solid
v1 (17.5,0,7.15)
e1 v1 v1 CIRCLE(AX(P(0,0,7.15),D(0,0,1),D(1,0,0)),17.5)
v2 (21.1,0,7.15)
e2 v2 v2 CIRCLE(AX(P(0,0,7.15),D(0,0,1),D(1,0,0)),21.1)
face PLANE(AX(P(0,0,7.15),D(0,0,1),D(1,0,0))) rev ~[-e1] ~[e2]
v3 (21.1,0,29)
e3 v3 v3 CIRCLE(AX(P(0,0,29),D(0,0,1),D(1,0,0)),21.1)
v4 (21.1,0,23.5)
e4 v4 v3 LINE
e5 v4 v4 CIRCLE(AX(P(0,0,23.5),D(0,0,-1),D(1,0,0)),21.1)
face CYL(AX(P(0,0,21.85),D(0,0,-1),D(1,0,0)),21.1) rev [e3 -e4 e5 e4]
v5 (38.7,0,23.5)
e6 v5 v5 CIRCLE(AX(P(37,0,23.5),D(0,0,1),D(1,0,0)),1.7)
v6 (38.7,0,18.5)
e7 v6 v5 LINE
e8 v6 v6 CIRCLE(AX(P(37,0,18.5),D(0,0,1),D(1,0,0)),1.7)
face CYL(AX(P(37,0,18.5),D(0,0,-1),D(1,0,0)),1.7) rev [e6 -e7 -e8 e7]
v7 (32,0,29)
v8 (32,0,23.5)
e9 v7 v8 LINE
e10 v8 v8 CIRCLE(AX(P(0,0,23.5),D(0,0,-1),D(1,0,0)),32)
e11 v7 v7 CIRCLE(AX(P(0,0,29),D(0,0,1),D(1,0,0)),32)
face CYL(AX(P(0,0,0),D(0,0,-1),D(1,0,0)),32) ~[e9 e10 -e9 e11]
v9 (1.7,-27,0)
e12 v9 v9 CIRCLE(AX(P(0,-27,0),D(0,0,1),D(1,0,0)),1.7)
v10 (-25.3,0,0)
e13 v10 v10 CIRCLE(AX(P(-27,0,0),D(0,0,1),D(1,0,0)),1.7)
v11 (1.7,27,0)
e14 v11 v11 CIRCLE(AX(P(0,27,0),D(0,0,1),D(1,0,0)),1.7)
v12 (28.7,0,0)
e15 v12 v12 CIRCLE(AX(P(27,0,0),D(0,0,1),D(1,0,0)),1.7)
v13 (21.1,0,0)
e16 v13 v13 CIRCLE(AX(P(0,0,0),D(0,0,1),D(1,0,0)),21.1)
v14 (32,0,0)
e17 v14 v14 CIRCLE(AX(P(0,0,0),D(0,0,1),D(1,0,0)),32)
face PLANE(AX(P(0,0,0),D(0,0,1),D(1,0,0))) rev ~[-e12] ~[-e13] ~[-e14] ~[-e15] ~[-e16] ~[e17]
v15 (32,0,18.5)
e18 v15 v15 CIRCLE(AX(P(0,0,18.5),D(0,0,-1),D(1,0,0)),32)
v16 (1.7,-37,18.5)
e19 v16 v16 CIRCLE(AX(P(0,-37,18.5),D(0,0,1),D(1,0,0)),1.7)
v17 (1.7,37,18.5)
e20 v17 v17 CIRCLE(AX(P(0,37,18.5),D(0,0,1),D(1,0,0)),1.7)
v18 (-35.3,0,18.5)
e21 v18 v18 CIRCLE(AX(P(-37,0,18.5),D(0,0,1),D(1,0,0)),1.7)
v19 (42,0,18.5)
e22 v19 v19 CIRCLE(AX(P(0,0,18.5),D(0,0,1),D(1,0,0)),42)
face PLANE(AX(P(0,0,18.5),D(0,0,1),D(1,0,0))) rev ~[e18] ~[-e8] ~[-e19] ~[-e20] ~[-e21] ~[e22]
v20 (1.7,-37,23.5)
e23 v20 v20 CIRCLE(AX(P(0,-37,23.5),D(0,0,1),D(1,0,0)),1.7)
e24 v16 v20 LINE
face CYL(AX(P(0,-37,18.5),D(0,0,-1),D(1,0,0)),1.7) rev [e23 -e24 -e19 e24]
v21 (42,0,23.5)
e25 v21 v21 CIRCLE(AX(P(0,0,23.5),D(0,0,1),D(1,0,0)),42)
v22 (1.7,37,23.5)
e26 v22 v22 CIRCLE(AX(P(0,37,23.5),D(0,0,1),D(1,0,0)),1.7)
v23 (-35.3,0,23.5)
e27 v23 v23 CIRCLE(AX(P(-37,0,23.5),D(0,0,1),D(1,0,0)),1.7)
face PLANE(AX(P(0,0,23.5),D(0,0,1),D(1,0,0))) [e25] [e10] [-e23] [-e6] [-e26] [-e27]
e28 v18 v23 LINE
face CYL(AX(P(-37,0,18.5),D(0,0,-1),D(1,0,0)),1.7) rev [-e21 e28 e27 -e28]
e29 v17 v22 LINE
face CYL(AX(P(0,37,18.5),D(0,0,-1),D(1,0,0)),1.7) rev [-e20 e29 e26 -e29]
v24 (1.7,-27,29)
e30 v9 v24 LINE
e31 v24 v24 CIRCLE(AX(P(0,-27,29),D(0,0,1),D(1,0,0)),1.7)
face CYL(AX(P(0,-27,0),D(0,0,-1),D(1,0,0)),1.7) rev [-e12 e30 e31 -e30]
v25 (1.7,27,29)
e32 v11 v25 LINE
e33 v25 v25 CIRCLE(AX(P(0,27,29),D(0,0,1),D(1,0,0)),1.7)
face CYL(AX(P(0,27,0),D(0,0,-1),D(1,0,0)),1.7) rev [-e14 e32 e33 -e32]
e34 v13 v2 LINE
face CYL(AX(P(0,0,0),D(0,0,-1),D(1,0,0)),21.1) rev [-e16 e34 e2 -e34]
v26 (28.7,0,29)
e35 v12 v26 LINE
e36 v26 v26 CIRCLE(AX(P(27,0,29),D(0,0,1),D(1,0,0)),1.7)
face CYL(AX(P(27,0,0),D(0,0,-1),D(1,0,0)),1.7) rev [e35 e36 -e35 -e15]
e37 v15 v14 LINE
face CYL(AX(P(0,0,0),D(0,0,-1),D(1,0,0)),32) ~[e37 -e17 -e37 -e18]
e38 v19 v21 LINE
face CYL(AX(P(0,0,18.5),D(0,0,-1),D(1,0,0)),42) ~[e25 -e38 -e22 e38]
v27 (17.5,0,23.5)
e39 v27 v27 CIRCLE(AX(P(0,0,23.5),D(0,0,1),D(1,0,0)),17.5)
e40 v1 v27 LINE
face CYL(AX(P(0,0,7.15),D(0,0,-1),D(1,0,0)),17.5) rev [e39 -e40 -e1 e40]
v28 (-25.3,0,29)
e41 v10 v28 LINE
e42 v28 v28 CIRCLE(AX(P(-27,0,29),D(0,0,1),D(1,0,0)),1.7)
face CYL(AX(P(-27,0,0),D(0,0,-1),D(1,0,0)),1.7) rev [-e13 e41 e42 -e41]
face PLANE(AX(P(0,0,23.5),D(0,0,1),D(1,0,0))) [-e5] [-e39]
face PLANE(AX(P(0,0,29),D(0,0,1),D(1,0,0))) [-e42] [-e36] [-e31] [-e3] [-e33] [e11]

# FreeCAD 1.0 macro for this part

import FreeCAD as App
import Part
import Sketcher
from FreeCAD import Vector

doc = App.newDocument("Part")
body = doc.addObject("PartDesign::Body", "Body")

# Sketch on XY plane
sketch1 = body.newObject("Sketcher::SketchObject", "Sketch")
sketch1.AttachmentSupport = (doc.getObject("XY_Plane"), [""])
sketch1.MapMode = "FlatFace"
sketch1.addGeometry(Part.Circle(Vector(0, 0, 0), Vector(0, 0, 1), 32), False)
sketch1.addGeometry(Part.Circle(Vector(0, -27, 0), Vector(0, 0, 1), 1.7), False)
sketch1.addGeometry(Part.Circle(Vector(-27, 0, 0), Vector(0, 0, 1), 1.7), False)
sketch1.addGeometry(Part.Circle(Vector(0, 0, 0), Vector(0, 0, 1), 21.1), False)
sketch1.addGeometry(Part.Circle(Vector(27, 0, 0), Vector(0, 0, 1), 1.7), False)
sketch1.addGeometry(Part.Circle(Vector(0, 27, 0), Vector(0, 0, 1), 1.7), False)
sketch1.addConstraint(Sketcher.Constraint("Coincident", 0, 3, -1, 1))
sketch1.addConstraint(Sketcher.Constraint("Coincident", 3, 3, -1, 1))
sketch1.addConstraint(Sketcher.Constraint("Equal", 1, 2))
sketch1.addConstraint(Sketcher.Constraint("Equal", 2, 4))
sketch1.addConstraint(Sketcher.Constraint("Equal", 4, 5))
sketch1.addConstraint(Sketcher.Constraint("Symmetric", 2, 3, 4, 3, -1, 1))
sketch1.addConstraint(Sketcher.Constraint("Symmetric", 1, 3, 5, 3, -1, 1))
sketch1.addConstraint(Sketcher.Constraint("PointOnObject", 1, 3, -2))
sketch1.addConstraint(Sketcher.Constraint("PointOnObject", 2, 3, -1))
sketch1.addConstraint(Sketcher.Constraint("Diameter", 0, 64.0))
sketch1.addConstraint(Sketcher.Constraint("Diameter", 1, 3.4))
sketch1.addConstraint(Sketcher.Constraint("Diameter", 3, 42.2))
sketch1.addConstraint(Sketcher.Constraint("DistanceY", 1, 3, -1, 1, 27.0))
sketch1.addConstraint(Sketcher.Constraint("DistanceX", 2, 3, -1, 1, 27.0))
pad1 = body.newObject("PartDesign::Pad", "Pad")
pad1.Profile = sketch1
pad1.Length = 7.15

# Sketch on XY plane
sketch2 = body.newObject("Sketcher::SketchObject", "Sketch001")
sketch2.AttachmentSupport = (doc.getObject("XY_Plane"), [""])
sketch2.MapMode = "FlatFace"
sketch2.AttachmentOffset = App.Placement(Vector(0, 0, 7.15), App.Rotation())
sketch2.addGeometry(Part.Circle(Vector(0, 0, 0), Vector(0, 0, 1), 32), False)
sketch2.addGeometry(Part.Circle(Vector(0, -27, 0), Vector(0, 0, 1), 1.7), False)
sketch2.addGeometry(Part.Circle(Vector(-27, 0, 0), Vector(0, 0, 1), 1.7), False)
sketch2.addGeometry(Part.Circle(Vector(0, 0, 0), Vector(0, 0, 1), 17.5), False)
sketch2.addGeometry(Part.Circle(Vector(27, 0, 0), Vector(0, 0, 1), 1.7), False)
sketch2.addGeometry(Part.Circle(Vector(0, 27, 0), Vector(0, 0, 1), 1.7), False)
sketch2.addConstraint(Sketcher.Constraint("Coincident", 0, 3, -1, 1))
sketch2.addConstraint(Sketcher.Constraint("Coincident", 3, 3, -1, 1))
sketch2.addConstraint(Sketcher.Constraint("Equal", 1, 2))
sketch2.addConstraint(Sketcher.Constraint("Equal", 2, 4))
sketch2.addConstraint(Sketcher.Constraint("Equal", 4, 5))
sketch2.addConstraint(Sketcher.Constraint("Symmetric", 2, 3, 4, 3, -1, 1))
sketch2.addConstraint(Sketcher.Constraint("Symmetric", 1, 3, 5, 3, -1, 1))
sketch2.addConstraint(Sketcher.Constraint("PointOnObject", 1, 3, -2))
sketch2.addConstraint(Sketcher.Constraint("PointOnObject", 2, 3, -1))
sketch2.addConstraint(Sketcher.Constraint("Diameter", 0, 64.0))
sketch2.addConstraint(Sketcher.Constraint("Diameter", 3, 35.0))
sketch2.addConstraint(Sketcher.Constraint("Diameter", 1, 3.4))
sketch2.addConstraint(Sketcher.Constraint("DistanceY", 1, 3, -1, 1, 27.0))
sketch2.addConstraint(Sketcher.Constraint("DistanceX", 2, 3, -1, 1, 27.0))
pad2 = body.newObject("PartDesign::Pad", "Pad001")
pad2.Profile = sketch2
pad2.Length = 14.7

# Sketch on XY plane
sketch3 = body.newObject("Sketcher::SketchObject", "Sketch002")
sketch3.AttachmentSupport = (doc.getObject("XY_Plane"), [""])
sketch3.MapMode = "FlatFace"
sketch3.AttachmentOffset = App.Placement(Vector(0, 0, 21.85), App.Rotation())
sketch3.addGeometry(Part.Circle(Vector(0, 0, 0), Vector(0, 0, 1), 32), False)
sketch3.addGeometry(Part.Circle(Vector(0, -27, 0), Vector(0, 0, 1), 1.7), False)
sketch3.addGeometry(Part.Circle(Vector(-27, 0, 0), Vector(0, 0, 1), 1.7), False)
sketch3.addGeometry(Part.Circle(Vector(0, 0, 0), Vector(0, 0, 1), 21.1), False)
sketch3.addGeometry(Part.Circle(Vector(27, 0, 0), Vector(0, 0, 1), 1.7), False)
sketch3.addGeometry(Part.Circle(Vector(0, 27, 0), Vector(0, 0, 1), 1.7), False)
sketch3.addConstraint(Sketcher.Constraint("Coincident", 0, 3, -1, 1))
sketch3.addConstraint(Sketcher.Constraint("Coincident", 3, 3, -1, 1))
sketch3.addConstraint(Sketcher.Constraint("Equal", 1, 2))
sketch3.addConstraint(Sketcher.Constraint("Equal", 2, 4))
sketch3.addConstraint(Sketcher.Constraint("Equal", 4, 5))
sketch3.addConstraint(Sketcher.Constraint("Symmetric", 2, 3, 4, 3, -1, 1))
sketch3.addConstraint(Sketcher.Constraint("Symmetric", 1, 3, 5, 3, -1, 1))
sketch3.addConstraint(Sketcher.Constraint("PointOnObject", 1, 3, -2))
sketch3.addConstraint(Sketcher.Constraint("PointOnObject", 2, 3, -1))
sketch3.addConstraint(Sketcher.Constraint("Diameter", 0, 64.0))
sketch3.addConstraint(Sketcher.Constraint("Diameter", 1, 3.4))
sketch3.addConstraint(Sketcher.Constraint("Diameter", 3, 42.2))
sketch3.addConstraint(Sketcher.Constraint("DistanceY", 1, 3, -1, 1, 27.0))
sketch3.addConstraint(Sketcher.Constraint("DistanceX", 2, 3, -1, 1, 27.0))
pad3 = body.newObject("PartDesign::Pad", "Pad002")
pad3.Profile = sketch3
pad3.Length = 7.15

# Sketch on XY plane
sketch4 = body.newObject("Sketcher::SketchObject", "Sketch003")
sketch4.AttachmentSupport = (doc.getObject("XY_Plane"), [""])
sketch4.MapMode = "FlatFace"
sketch4.AttachmentOffset = App.Placement(Vector(0, 0, 18.5), App.Rotation())
sketch4.addGeometry(Part.Circle(Vector(0, 0, 0), Vector(0, 0, 1), 42), False)
sketch4.addGeometry(Part.Circle(Vector(0, -37, 0), Vector(0, 0, 1), 1.7), False)
sketch4.addGeometry(Part.Circle(Vector(0, -27, 0), Vector(0, 0, 1), 1.7), False)
sketch4.addGeometry(Part.Circle(Vector(-37, 0, 0), Vector(0, 0, 1), 1.7), False)
sketch4.addGeometry(Part.Circle(Vector(-27, 0, 0), Vector(0, 0, 1), 1.7), False)
sketch4.addGeometry(Part.Circle(Vector(0, 0, 0), Vector(0, 0, 1), 17.5), False)
sketch4.addGeometry(Part.Circle(Vector(27, 0, 0), Vector(0, 0, 1), 1.7), False)
sketch4.addGeometry(Part.Circle(Vector(37, 0, 0), Vector(0, 0, 1), 1.7), False)
sketch4.addGeometry(Part.Circle(Vector(0, 27, 0), Vector(0, 0, 1), 1.7), False)
sketch4.addGeometry(Part.Circle(Vector(0, 37, 0), Vector(0, 0, 1), 1.7), False)
sketch4.addConstraint(Sketcher.Constraint("Coincident", 0, 3, -1, 1))
sketch4.addConstraint(Sketcher.Constraint("Coincident", 5, 3, -1, 1))
sketch4.addConstraint(Sketcher.Constraint("Equal", 1, 2))
sketch4.addConstraint(Sketcher.Constraint("Equal", 2, 3))
sketch4.addConstraint(Sketcher.Constraint("Equal", 3, 4))
sketch4.addConstraint(Sketcher.Constraint("Equal", 4, 6))
sketch4.addConstraint(Sketcher.Constraint("Equal", 6, 7))
sketch4.addConstraint(Sketcher.Constraint("Equal", 7, 8))
sketch4.addConstraint(Sketcher.Constraint("Equal", 8, 9))
sketch4.addConstraint(Sketcher.Constraint("Symmetric", 4, 3, 6, 3, -1, 1))
sketch4.addConstraint(Sketcher.Constraint("Symmetric", 3, 3, 7, 3, -1, 1))
sketch4.addConstraint(Sketcher.Constraint("Symmetric", 2, 3, 8, 3, -1, 1))
sketch4.addConstraint(Sketcher.Constraint("Symmetric", 1, 3, 9, 3, -1, 1))
sketch4.addConstraint(Sketcher.Constraint("PointOnObject", 1, 3, -2))
sketch4.addConstraint(Sketcher.Constraint("PointOnObject", 2, 3, -2))
sketch4.addConstraint(Sketcher.Constraint("PointOnObject", 3, 3, -1))
sketch4.addConstraint(Sketcher.Constraint("PointOnObject", 4, 3, -1))
sketch4.addConstraint(Sketcher.Constraint("Diameter", 0, 84.0))
sketch4.addConstraint(Sketcher.Constraint("Diameter", 5, 35.0))
sketch4.addConstraint(Sketcher.Constraint("Diameter", 1, 3.4))
sketch4.addConstraint(Sketcher.Constraint("DistanceY", 1, 3, -1, 1, 37.0))
sketch4.addConstraint(Sketcher.Constraint("DistanceY", 2, 3, -1, 1, 27.0))
sketch4.addConstraint(Sketcher.Constraint("DistanceX", 3, 3, -1, 1, 37.0))
sketch4.addConstraint(Sketcher.Constraint("DistanceX", 4, 3, -1, 1, 27.0))
pad4 = body.newObject("PartDesign::Pad", "Pad003")
pad4.Profile = sketch4
pad4.Length = 5

doc.recompute()
